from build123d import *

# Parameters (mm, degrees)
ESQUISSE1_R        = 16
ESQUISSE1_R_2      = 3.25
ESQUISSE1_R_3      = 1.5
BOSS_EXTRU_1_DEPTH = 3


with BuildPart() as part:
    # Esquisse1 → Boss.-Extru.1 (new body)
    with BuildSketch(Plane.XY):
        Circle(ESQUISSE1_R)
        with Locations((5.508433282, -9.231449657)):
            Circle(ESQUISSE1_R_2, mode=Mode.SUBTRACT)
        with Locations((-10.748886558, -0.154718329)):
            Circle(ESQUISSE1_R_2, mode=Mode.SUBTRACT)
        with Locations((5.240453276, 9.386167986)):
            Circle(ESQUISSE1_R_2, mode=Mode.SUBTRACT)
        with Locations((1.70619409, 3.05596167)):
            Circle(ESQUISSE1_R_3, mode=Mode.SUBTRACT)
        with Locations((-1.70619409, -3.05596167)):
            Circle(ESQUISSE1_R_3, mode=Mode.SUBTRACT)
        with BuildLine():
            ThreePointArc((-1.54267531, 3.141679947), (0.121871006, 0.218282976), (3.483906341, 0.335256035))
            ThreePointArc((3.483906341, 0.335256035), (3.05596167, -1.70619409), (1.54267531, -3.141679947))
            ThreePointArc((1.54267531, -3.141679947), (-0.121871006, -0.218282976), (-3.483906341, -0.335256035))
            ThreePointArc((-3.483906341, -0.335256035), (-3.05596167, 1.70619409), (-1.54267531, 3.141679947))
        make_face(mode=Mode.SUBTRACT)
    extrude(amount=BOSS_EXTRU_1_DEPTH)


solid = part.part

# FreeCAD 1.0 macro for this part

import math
import FreeCAD as App
import Part
import Sketcher
from FreeCAD import Vector
Q = App.Units.Quantity

doc = App.newDocument("Part")
params = doc.addObject("Spreadsheet::Sheet", "Params")
for row, (alias, value) in enumerate([
    ("sketch1_diameter", "32 mm"),
    ("sketch1_diameter2", "3 mm"),
    ("sketch1_diameter3", "6.5 mm"),
    ("sketch1_radius", "3.5 mm"),
    ("pad1_length", "3 mm"),
], start=1):
    params.set(f"A{row}", alias)
    params.set(f"B{row}", "=" + value)
    params.setAlias(f"B{row}", alias)

body = doc.addObject("PartDesign::Body", "Body")

# Sketch on XY plane
sketch1 = body.newObject("Sketcher::SketchObject", "Sketch")
sketch1.AttachmentSupport = (doc.getObject("XY_Plane"), [""])
sketch1.MapMode = "FlatFace"
sketch1.addGeometry(Part.Circle(Vector(0, 0, 0), Vector(0, 0, 1), 16), False)
sketch1.addGeometry(Part.Circle(Vector(-10.748887, -0.154718, 0), Vector(0, 0, 1), 3.25), False)
sketch1.addGeometry(Part.Circle(Vector(5.508433, -9.23145, 0), Vector(0, 0, 1), 3.25), False)
sketch1.addGeometry(Part.Circle(Vector(-1.706194, -3.055962, 0), Vector(0, 0, 1), 1.5), False)
sketch1.addGeometry(Part.ArcOfCircle(Part.Circle(Vector(0, 0, 0), Vector(0, 0, 1), 3.5), math.radians(116.152661), math.radians(185.496643)), False)
sketch1.addGeometry(Part.ArcOfCircle(Part.Circle(Vector(1.706194, 3.055962, 0), Vector(0, 0, 1), 3.25), math.radians(178.488657), math.radians(303.160648)), False)
sketch1.addGeometry(Part.ArcOfCircle(Part.Circle(Vector(0, 0, 0), Vector(0, 0, 1), 3.5), math.radians(-63.847339), math.radians(5.496643)), False)
sketch1.addGeometry(Part.ArcOfCircle(Part.Circle(Vector(-1.706194, -3.055962, 0), Vector(0, 0, 1), 3.25), math.radians(-1.511343), math.radians(123.160648)), False)
sketch1.addGeometry(Part.Circle(Vector(1.706194, 3.055962, 0), Vector(0, 0, 1), 1.5), False)
sketch1.addGeometry(Part.Circle(Vector(5.240453, 9.386168, 0), Vector(0, 0, 1), 3.25), False)
sketch1.addConstraint(Sketcher.Constraint("Coincident", 4, 1, 5, 1))
sketch1.addConstraint(Sketcher.Constraint("Coincident", 5, 2, 6, 2))
sketch1.addConstraint(Sketcher.Constraint("Coincident", 6, 1, 7, 1))
sketch1.addConstraint(Sketcher.Constraint("Coincident", 7, 2, 4, 2))
sketch1.addConstraint(Sketcher.Constraint("Coincident", 0, 3, -1, 1))
sketch1.addConstraint(Sketcher.Constraint("Coincident", 4, 3, -1, 1))
sketch1.addConstraint(Sketcher.Constraint("Coincident", 6, 3, -1, 1))
sketch1.addConstraint(Sketcher.Constraint("Coincident", 7, 3, 3, 3))
sketch1.addConstraint(Sketcher.Constraint("Coincident", 8, 3, 5, 3))
sketch1.addConstraint(Sketcher.Constraint("Equal", 1, 2))
sketch1.addConstraint(Sketcher.Constraint("Equal", 2, 5))
sketch1.addConstraint(Sketcher.Constraint("Equal", 4, 6))
sketch1.addConstraint(Sketcher.Constraint("Equal", 5, 7))
sketch1.addConstraint(Sketcher.Constraint("Equal", 3, 8))
sketch1.addConstraint(Sketcher.Constraint("Equal", 7, 9))
sketch1.addConstraint(Sketcher.Constraint("Symmetric", 3, 3, 5, 3, -1, 1))
sketch1.addConstraint(Sketcher.Constraint("Diameter", 0, Q("32 mm")))
sketch1.addConstraint(Sketcher.Constraint("Diameter", 3, Q("3 mm")))
sketch1.addConstraint(Sketcher.Constraint("Diameter", 1, Q("6.5 mm")))
sketch1.addConstraint(Sketcher.Constraint("Radius", 4, Q("3.5 mm")))
sketch1.addConstraint(Sketcher.Constraint("DistanceY", 1, 3, -1, 1, Q("0.154718 mm")))
sketch1.addConstraint(Sketcher.Constraint("DistanceY", 2, 3, -1, 1, Q("9.23145 mm")))
sketch1.addConstraint(Sketcher.Constraint("DistanceY", 3, 3, -1, 1, Q("3.055962 mm")))
sketch1.addConstraint(Sketcher.Constraint("DistanceY", -1, 1, 4, 1, Q("3.14168 mm")))
sketch1.addConstraint(Sketcher.Constraint("DistanceX", 1, 3, 2, 3, Q("16.25732 mm")))
sketch1.addConstraint(Sketcher.Constraint("DistanceX", 1, 3, 5, 3, Q("12.455081 mm")))
sketch1.addConstraint(Sketcher.Constraint("DistanceX", 8, 3, 9, 3, Q("3.534259 mm")))
sketch1.addConstraint(Sketcher.Constraint("DistanceY", -1, 1, 9, 3, Q("9.386168 mm")))
sketch1.setExpression("Constraints[16]", "Params.sketch1_diameter")
sketch1.setExpression("Constraints[17]", "Params.sketch1_diameter2")
sketch1.setExpression("Constraints[18]", "Params.sketch1_diameter3")
sketch1.setExpression("Constraints[19]", "Params.sketch1_radius")
pad1 = body.newObject("PartDesign::Pad", "Pad")
pad1.Profile = sketch1
pad1.setExpression("Length", "Params.pad1_length")

doc.recompute()
